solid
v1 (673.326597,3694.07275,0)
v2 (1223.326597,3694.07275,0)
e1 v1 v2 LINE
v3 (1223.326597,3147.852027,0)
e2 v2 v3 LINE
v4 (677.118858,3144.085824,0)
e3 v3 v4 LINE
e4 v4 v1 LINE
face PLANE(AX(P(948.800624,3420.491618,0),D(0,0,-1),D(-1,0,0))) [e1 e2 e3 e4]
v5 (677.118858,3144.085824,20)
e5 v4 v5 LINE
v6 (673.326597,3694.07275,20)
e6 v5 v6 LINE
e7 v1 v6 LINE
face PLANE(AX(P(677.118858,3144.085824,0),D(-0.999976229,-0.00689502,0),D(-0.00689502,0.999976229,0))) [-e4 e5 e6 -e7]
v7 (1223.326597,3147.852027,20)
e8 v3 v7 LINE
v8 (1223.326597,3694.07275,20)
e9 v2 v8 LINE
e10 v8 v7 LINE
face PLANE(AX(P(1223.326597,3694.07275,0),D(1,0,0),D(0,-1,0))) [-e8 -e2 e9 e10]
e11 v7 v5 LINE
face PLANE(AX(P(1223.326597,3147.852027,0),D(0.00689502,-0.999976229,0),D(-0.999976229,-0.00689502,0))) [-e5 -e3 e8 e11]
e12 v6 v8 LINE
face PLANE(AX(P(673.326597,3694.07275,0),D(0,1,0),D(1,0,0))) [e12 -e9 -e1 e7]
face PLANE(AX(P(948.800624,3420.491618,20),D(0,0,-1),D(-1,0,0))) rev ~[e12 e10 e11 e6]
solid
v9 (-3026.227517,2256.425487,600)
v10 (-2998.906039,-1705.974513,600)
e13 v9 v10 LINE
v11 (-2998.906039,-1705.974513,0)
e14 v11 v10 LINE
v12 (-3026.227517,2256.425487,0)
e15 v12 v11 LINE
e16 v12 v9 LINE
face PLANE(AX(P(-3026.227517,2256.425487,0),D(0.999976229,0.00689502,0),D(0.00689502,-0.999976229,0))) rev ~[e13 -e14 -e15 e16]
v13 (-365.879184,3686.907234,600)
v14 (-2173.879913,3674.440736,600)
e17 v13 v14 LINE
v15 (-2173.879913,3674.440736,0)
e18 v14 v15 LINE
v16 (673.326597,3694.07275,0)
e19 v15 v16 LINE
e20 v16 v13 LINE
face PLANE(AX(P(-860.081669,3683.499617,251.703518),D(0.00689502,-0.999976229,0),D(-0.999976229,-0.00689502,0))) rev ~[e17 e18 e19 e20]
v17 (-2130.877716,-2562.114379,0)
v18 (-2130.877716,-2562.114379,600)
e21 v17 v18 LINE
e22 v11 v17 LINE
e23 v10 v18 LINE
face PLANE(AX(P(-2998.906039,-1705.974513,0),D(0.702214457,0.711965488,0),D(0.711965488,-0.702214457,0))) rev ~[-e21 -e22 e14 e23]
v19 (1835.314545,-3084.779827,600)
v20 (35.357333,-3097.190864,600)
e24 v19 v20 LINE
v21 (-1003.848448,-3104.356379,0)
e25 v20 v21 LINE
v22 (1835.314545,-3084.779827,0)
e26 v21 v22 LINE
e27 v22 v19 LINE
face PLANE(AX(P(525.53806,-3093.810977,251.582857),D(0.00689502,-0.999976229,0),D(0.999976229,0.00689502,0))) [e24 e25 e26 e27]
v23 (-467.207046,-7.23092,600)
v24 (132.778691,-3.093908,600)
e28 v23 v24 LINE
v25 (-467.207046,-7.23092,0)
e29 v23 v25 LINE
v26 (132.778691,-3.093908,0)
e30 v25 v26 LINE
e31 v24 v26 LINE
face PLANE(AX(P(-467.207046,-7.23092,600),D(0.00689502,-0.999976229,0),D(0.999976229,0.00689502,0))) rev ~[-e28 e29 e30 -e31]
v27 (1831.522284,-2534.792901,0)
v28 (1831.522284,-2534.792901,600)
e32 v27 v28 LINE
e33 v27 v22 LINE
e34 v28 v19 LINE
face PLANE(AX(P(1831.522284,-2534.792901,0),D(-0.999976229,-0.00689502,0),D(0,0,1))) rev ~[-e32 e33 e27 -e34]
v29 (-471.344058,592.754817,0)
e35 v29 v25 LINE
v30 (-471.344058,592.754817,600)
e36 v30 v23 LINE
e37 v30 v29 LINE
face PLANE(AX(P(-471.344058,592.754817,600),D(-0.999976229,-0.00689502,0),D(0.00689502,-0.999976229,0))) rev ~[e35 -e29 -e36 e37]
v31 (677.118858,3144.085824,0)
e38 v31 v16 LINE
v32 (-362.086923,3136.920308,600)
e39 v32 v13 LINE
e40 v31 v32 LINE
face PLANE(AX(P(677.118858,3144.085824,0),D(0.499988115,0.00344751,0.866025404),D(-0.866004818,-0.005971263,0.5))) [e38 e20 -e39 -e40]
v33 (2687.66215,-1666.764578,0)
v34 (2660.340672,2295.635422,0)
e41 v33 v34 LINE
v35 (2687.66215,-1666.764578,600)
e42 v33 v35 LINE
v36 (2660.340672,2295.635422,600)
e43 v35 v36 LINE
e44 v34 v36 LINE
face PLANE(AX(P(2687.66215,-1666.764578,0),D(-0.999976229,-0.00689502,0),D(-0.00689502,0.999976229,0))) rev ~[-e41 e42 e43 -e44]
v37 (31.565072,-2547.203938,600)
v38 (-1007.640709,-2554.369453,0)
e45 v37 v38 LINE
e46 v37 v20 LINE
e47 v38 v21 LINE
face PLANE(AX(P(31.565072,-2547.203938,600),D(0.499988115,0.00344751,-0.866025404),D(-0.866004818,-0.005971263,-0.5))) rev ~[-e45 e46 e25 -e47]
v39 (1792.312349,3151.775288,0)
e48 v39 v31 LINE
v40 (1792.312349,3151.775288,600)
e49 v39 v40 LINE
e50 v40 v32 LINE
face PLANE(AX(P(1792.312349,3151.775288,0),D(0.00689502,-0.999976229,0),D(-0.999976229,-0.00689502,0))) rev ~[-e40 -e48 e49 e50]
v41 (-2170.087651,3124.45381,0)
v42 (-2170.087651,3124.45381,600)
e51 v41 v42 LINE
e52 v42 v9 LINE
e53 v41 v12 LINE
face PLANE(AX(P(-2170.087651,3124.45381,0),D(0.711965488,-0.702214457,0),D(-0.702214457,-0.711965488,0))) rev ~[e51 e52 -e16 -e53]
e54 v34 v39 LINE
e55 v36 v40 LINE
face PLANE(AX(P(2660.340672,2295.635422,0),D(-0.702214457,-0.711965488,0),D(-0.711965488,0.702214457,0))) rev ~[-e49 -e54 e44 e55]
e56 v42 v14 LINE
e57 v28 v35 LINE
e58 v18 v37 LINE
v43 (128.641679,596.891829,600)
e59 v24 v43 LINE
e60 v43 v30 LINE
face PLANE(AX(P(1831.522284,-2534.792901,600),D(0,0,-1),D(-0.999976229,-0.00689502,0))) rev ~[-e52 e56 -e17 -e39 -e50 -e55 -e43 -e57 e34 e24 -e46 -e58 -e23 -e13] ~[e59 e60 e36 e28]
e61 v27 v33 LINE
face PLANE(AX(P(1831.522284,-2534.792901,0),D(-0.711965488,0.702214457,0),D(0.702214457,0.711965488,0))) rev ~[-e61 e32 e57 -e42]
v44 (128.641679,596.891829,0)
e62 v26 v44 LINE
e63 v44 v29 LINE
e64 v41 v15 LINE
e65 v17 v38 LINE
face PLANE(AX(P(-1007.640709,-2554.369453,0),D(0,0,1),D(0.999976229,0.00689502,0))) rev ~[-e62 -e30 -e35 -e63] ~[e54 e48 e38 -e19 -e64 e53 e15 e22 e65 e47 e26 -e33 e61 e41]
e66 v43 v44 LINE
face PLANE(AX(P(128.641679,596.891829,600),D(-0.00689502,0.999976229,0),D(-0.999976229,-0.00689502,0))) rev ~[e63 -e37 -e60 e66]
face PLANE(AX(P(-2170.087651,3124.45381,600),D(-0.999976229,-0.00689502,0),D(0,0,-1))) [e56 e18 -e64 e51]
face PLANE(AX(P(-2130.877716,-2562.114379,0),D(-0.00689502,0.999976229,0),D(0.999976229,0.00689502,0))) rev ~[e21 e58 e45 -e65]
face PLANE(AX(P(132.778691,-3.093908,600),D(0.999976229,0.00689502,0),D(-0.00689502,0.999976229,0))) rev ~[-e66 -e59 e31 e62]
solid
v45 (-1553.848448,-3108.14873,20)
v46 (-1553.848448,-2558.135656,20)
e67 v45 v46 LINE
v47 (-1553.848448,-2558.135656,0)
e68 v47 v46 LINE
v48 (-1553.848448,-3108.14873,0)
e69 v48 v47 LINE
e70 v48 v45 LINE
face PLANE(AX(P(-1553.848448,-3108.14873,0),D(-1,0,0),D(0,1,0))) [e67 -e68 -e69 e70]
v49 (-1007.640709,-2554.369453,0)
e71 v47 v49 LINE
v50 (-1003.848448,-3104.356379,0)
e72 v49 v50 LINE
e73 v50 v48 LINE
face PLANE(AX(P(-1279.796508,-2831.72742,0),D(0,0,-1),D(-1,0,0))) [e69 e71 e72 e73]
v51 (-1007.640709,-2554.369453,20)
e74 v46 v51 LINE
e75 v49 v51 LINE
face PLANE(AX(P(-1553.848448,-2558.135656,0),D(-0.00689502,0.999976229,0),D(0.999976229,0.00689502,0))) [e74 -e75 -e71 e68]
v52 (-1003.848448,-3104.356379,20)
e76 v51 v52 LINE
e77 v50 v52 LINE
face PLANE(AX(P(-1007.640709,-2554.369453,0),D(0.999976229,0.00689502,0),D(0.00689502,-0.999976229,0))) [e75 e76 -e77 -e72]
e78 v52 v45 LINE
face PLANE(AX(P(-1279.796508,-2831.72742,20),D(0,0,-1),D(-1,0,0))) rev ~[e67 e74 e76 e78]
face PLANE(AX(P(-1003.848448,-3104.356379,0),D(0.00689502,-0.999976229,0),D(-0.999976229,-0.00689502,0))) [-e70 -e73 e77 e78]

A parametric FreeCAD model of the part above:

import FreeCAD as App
import Part
import Sketcher

V = App.Vector
Q = App.Units.Quantity


def add_polygon(sketch, points):
    """Adds a closed chain of lines whose ends are joined by coincident constraints."""
    first, n = sketch.GeometryCount, len(points)
    for a, b in zip(points, points[1:] + points[:1]):
        sketch.addGeometry(Part.LineSegment(App.Vector(*a, 0), App.Vector(*b, 0)), False)
    for i in range(n):
        sketch.addConstraint(Sketcher.Constraint("Coincident", first + i, 2, first + (i + 1) % n, 1))

doc = App.newDocument("Part")
body = doc.addObject("PartDesign::Body", "Body")

sketch1 = body.newObject("Sketcher::SketchObject", "Sketch")
sketch1.AttachmentSupport = (doc.getObject("XY_Plane"), [""])
sketch1.MapMode = "FlatFace"
add_polygon(sketch1, [(2688, -1667), (2660, 2296), (1792, 3152), (-2170, 3124), (-3026, 2256), (-2999, -1706), (-2131, -2562), (1832, -2535)])
sketch1.addConstraint([
    Sketcher.Constraint("Perpendicular", 0, 2),
    Sketcher.Constraint("Perpendicular", 1, 3),
    Sketcher.Constraint("Perpendicular", 2, 4),
    Sketcher.Constraint("Perpendicular", 3, 5),
    Sketcher.Constraint("Perpendicular", 4, 6),
    Sketcher.Constraint("Perpendicular", 5, 7),
    Sketcher.Constraint("Equal", 0, 2),
    Sketcher.Constraint("Equal", 1, 3),
    Sketcher.Constraint("Equal", 2, 4),
    Sketcher.Constraint("Equal", 3, 5),
    Sketcher.Constraint("Distance", 1, Q("1219.2 mm")),
    Sketcher.Constraint("DistanceX", 2, 2, 1, 2, Q("3962.4 mm")),
    Sketcher.Constraint("DistanceY", 6, 2, -1, 1, Q("2534.792901 mm")),
    Sketcher.Constraint("DistanceY", 3, 2, 1, 2, Q("895.349802 mm")),
    Sketcher.Constraint("DistanceX", -1, 1, 0, 2, Q("2660.340672 mm")),
    Sketcher.Constraint("DistanceX", -1, 1, 1, 2, Q("1792.312349 mm")),
])
pad1 = body.newObject("PartDesign::Pad", "Pad")
pad1.Profile = sketch1
pad1.Length = 600

sketch2 = body.newObject("Sketcher::SketchObject", "Sketch001")
sketch2.Placement = App.Placement(V(-21.645829, 3139.267712, 0), App.Rotation(V(0.999976229, 0.00689502, 0), V(0, 0, -1), V(-0.00689502, 0.999976229, 0), "ZXY"))
add_polygon(sketch2, [(-340, -600), (699, 0), (-2148, 0), (-2148, -600)])
sketch2.addConstraint([
    Sketcher.Constraint("Horizontal", 1),
    Sketcher.Constraint("Vertical", 2),
    Sketcher.Constraint("Horizontal", 3),
    Sketcher.Constraint("PointOnObject", 0, 2, -1),
    Sketcher.Constraint("DistanceY", 2, 2, 2, 1, Q("600 mm")),
    Sketcher.Constraint("Angle", 0, Q("30 deg")),
    Sketcher.Constraint("DistanceX", 1, 2, 1, 1, Q("2847.274192 mm")),
    Sketcher.Constraint("DistanceX", -1, 1, 0, 2, Q("698.781298 mm")),
])
pad2 = body.newObject("PartDesign::Pad", "Pad001")
pad2.Profile = sketch2
pad2.Length = 550

sketch3 = body.newObject("Sketcher::SketchObject", "Sketch002")
sketch3.Placement = App.Placement(V(17.564106, -2547.300477, 0), App.Rotation(V(0.999976229, 0.00689502, 0), V(0, 0, 1), V(0.00689502, -0.999976229, 0), "ZXY"))
add_polygon(sketch3, [(1814, 600), (14, 600), (-1025, 0), (1814, 0)])
sketch3.addConstraint([
    Sketcher.Constraint("Horizontal", 0),
    Sketcher.Constraint("Horizontal", 2),
    Sketcher.Constraint("Vertical", 3),
    Sketcher.Constraint("PointOnObject", 1, 2, -1),
    Sketcher.Constraint("DistanceX", 0, 2, 0, 1, Q("1800 mm")),
    Sketcher.Constraint("DistanceY", 3, 1, 3, 2, Q("600 mm")),
    Sketcher.Constraint("Angle", 1, Q("-150 deg")),
    Sketcher.Constraint("DistanceX", -1, 1, 0, 2, Q("14.001298 mm")),
])
pad3 = body.newObject("PartDesign::Pad", "Pad002")
pad3.Profile = sketch3
pad3.Length = 550

sketch4 = body.newObject("Sketcher::SketchObject", "Sketch003")
sketch4.AttachmentSupport = (doc.getObject("XY_Plane"), [""])
sketch4.MapMode = "FlatFace"
sketch4.AttachmentOffset = App.Placement(V(0, 0, 600), App.Rotation())
add_polygon(sketch4, [(129, 597), (-471, 593), (-467, -7), (133, -3)])
sketch4.addConstraint([
    Sketcher.Constraint("Perpendicular", 0, 1),
    Sketcher.Constraint("Perpendicular", 1, 2),
    Sketcher.Constraint("Perpendicular", 2, 3),
    Sketcher.Constraint("Equal", 0, 1),
    Sketcher.Constraint("Distance", 0, Q("600 mm")),
    Sketcher.Constraint("DistanceX", 0, 2, -1, 1, Q("471.344058 mm")),
    Sketcher.Constraint("DistanceY", 1, 2, -1, 1, Q("7.23092 mm")),
    Sketcher.Constraint("DistanceX", -1, 1, 2, 2, Q("132.778691 mm")),
])
pocket1 = body.newObject("PartDesign::Pocket", "Pocket")
pocket1.Profile = sketch4
pocket1.Length = 1000
body2 = doc.addObject("PartDesign::Body", "Body001")

sketch5 = body2.newObject("Sketcher::SketchObject", "Sketch004")
sketch5.AttachmentSupport = (doc.getObject("XY_Plane001"), [""])
sketch5.MapMode = "FlatFace"
add_polygon(sketch5, [(677, 3144), (673, 3694), (1223, 3694), (1223, 3148)])
sketch5.addConstraint([
    Sketcher.Constraint("Horizontal", 1),
    Sketcher.Constraint("Vertical", 2),
    Sketcher.Constraint("Perpendicular", 0, 3),
    Sketcher.Constraint("DistanceX", 1, 1, 1, 2, Q("550 mm")),
    Sketcher.Constraint("Distance", 0, Q("550 mm")),
    Sketcher.Constraint("DistanceY", 2, 2, 2, 1, Q("546.220723 mm")),
    Sketcher.Constraint("DistanceY", -1, 1, 0, 2, Q("3694.07275 mm")),
    Sketcher.Constraint("DistanceX", -1, 1, 3, 2, Q("677.118858 mm")),
])
pad4 = body2.newObject("PartDesign::Pad", "Pad003")
pad4.Profile = sketch5
pad4.Length = 20
body3 = doc.addObject("PartDesign::Body", "Body002")

sketch6 = body3.newObject("Sketcher::SketchObject", "Sketch005")
sketch6.AttachmentSupport = (doc.getObject("XY_Plane002"), [""])
sketch6.MapMode = "FlatFace"
add_polygon(sketch6, [(-1007.640709, -2554.369453), (-1003.848448, -3104.356379), (-1553.848448, -3108.14873), (-1553.848448, -2558.135656)])
sketch6.addConstraint([
    Sketcher.Constraint("Vertical", 2),
    Sketcher.Constraint("Perpendicular", 0, 1),
    Sketcher.Constraint("Parallel", 1, 3),
    Sketcher.Constraint("Distance", 0, Q("550 mm")),
    Sketcher.Constraint("DistanceX", 1, 2, 0, 2, Q("550 mm")),
    Sketcher.Constraint("DistanceY", 2, 1, 2, 2, Q("550.013074 mm")),
    Sketcher.Constraint("DistanceY", 0, 2, -1, 1, Q("3104.356379 mm")),
    Sketcher.Constraint("DistanceX", 3, 2, -1, 1, Q("1007.640709 mm")),
])
pad5 = body3.newObject("PartDesign::Pad", "Pad004")
pad5.Profile = sketch6
pad5.Length = 20

doc.recompute()
